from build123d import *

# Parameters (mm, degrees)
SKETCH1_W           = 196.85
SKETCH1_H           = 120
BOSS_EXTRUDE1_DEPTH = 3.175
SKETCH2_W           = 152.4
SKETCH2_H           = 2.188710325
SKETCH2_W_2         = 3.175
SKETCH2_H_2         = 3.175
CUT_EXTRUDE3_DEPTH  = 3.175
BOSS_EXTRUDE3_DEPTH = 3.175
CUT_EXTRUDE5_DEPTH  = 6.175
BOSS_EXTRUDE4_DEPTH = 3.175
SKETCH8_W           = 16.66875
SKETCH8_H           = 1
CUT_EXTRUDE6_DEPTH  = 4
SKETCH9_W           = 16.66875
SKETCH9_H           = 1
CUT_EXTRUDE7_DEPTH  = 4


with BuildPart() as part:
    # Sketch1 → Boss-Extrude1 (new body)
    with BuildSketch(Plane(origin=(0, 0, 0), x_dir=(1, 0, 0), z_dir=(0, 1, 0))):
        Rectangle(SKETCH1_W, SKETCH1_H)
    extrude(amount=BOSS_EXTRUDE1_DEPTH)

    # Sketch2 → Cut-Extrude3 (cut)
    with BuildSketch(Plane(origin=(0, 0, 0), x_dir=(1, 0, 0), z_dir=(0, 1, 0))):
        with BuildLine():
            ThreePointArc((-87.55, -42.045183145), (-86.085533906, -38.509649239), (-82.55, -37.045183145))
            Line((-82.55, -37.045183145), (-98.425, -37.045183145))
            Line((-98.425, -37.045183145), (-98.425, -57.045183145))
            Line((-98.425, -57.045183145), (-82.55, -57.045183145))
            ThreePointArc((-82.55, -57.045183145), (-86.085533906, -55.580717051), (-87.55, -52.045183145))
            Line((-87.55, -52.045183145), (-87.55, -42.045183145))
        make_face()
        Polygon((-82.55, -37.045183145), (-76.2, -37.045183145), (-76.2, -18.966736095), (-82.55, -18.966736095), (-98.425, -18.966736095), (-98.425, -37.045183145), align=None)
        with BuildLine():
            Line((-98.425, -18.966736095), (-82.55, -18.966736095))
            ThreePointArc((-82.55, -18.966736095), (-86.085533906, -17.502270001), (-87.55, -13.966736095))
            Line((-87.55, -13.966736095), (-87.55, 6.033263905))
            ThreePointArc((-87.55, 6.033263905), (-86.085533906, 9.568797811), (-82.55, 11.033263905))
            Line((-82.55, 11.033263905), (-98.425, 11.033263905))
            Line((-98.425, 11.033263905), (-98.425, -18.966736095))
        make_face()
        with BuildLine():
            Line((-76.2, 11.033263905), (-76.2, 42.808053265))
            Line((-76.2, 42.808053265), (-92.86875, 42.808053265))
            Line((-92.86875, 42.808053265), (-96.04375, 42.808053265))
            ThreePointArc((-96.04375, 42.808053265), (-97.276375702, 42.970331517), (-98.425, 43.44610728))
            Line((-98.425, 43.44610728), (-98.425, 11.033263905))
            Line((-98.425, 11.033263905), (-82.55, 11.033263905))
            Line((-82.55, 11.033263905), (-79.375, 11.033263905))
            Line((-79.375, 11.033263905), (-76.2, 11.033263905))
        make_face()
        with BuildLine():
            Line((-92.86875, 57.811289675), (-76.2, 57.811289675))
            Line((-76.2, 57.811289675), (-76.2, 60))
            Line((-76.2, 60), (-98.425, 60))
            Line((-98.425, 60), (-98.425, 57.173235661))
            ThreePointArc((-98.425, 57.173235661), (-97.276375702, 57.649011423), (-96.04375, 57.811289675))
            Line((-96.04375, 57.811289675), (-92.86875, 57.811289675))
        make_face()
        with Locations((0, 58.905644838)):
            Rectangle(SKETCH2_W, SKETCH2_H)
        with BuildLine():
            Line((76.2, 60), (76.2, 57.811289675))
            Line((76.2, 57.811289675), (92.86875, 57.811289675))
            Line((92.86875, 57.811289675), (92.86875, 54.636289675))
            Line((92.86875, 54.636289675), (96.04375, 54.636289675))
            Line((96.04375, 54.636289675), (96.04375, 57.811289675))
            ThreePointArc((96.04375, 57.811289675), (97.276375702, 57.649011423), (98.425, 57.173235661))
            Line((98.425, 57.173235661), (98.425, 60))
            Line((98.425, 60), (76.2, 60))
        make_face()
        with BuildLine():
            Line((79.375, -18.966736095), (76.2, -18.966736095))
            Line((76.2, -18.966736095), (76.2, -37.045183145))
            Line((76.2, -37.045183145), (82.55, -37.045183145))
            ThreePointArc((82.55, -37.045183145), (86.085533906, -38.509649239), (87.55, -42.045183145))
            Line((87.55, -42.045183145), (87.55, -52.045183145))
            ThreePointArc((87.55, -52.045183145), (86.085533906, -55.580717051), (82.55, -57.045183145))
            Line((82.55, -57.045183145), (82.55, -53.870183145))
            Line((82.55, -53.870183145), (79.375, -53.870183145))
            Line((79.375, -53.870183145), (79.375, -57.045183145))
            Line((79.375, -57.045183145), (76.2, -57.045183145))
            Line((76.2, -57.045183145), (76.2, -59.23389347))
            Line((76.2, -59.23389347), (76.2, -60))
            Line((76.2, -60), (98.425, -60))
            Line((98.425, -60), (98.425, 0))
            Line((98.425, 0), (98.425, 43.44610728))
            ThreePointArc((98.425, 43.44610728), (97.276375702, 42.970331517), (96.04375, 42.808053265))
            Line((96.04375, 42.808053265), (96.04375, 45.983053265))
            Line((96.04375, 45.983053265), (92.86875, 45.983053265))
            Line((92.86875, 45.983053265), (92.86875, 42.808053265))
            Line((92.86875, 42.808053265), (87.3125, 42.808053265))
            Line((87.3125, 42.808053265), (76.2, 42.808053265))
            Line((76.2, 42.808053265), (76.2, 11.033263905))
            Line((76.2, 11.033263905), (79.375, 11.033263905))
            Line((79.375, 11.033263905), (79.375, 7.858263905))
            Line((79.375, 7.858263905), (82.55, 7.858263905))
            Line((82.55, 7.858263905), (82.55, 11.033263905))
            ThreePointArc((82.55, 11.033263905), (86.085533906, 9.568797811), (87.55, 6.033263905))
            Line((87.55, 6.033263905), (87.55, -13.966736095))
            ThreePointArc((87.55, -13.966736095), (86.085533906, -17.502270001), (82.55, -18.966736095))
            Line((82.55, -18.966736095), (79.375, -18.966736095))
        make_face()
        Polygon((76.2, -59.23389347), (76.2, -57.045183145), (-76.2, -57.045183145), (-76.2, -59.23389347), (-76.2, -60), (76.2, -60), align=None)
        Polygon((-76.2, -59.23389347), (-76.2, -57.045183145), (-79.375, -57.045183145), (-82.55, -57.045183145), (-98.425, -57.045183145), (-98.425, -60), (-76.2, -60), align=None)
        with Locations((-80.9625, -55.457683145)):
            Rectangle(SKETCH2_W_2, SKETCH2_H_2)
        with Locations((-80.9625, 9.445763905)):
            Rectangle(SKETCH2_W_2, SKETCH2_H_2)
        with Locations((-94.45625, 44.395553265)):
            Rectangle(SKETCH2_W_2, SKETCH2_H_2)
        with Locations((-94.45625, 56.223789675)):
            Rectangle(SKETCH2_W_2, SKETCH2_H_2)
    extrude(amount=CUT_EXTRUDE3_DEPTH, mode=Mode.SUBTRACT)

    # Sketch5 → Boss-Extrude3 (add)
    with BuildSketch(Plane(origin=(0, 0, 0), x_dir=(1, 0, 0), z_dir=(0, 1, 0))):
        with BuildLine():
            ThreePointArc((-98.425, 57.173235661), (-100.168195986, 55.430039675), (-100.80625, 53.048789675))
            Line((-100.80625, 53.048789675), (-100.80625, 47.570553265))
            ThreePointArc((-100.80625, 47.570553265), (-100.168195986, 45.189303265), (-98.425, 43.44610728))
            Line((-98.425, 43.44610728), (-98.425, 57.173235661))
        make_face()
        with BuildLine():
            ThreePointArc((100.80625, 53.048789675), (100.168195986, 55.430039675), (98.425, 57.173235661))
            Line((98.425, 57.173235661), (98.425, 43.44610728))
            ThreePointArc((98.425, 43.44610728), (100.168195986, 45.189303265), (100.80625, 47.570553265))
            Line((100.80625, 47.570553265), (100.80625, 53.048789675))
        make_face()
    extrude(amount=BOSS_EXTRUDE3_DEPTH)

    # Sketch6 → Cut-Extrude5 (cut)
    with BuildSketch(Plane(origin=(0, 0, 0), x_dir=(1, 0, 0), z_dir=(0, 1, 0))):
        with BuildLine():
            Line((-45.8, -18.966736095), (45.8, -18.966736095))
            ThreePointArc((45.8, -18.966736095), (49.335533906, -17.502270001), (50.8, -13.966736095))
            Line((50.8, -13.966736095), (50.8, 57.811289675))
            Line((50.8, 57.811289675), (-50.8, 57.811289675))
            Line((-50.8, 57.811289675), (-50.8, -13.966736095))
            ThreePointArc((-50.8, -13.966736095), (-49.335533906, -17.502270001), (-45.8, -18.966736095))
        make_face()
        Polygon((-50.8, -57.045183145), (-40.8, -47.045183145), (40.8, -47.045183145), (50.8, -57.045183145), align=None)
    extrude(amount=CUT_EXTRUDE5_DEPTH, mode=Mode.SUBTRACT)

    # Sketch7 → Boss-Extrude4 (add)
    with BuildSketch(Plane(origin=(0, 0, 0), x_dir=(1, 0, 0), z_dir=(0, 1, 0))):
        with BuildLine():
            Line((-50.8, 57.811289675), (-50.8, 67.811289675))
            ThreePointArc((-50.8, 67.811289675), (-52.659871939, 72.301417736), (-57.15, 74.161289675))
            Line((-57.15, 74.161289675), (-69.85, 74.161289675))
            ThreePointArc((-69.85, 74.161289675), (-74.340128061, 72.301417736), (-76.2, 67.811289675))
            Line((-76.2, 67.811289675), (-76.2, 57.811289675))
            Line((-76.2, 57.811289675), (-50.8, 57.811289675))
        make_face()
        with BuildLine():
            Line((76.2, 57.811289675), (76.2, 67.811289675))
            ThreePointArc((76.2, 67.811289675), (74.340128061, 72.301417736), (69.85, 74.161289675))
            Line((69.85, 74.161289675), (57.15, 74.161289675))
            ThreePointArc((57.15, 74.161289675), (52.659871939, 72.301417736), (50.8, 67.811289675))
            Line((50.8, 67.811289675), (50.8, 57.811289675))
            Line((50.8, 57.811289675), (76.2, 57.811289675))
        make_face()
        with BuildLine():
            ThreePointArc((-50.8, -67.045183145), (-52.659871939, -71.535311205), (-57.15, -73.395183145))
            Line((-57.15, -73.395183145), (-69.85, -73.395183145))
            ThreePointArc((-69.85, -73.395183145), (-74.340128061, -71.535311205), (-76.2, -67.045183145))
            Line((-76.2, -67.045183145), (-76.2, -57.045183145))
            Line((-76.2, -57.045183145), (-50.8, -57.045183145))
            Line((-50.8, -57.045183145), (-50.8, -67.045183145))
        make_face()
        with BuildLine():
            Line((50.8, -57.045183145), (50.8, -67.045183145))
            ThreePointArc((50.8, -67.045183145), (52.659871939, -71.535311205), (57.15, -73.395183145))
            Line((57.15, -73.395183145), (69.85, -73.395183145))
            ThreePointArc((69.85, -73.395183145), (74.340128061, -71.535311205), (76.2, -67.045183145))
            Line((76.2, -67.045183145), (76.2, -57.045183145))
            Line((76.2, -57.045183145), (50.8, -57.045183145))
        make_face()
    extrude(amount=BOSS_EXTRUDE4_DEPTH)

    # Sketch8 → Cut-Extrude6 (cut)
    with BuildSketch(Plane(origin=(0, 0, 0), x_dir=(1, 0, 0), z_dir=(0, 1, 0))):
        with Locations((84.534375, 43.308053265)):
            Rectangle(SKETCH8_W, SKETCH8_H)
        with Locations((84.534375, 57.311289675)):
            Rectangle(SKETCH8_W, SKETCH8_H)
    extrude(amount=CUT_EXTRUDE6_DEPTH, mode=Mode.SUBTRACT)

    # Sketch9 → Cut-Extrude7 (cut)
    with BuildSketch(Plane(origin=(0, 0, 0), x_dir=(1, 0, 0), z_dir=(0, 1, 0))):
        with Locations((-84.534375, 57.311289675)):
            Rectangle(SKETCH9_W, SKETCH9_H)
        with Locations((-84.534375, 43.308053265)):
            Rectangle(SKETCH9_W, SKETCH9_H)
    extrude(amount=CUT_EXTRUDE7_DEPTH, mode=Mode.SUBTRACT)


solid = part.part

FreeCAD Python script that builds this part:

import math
import FreeCAD as App
import Part
import Sketcher
from FreeCAD import Vector
Q = App.Units.Quantity


def add_polygon(sketch, points):
    """Adds a closed chain of lines whose ends are joined by coincident constraints."""
    first, n = sketch.GeometryCount, len(points)
    for a, b in zip(points, points[1:] + points[:1]):
        sketch.addGeometry(Part.LineSegment(App.Vector(*a, 0), App.Vector(*b, 0)), False)
    for i in range(n):
        sketch.addConstraint(Sketcher.Constraint("Coincident", first + i, 2, first + (i + 1) % n, 1))

doc = App.newDocument("Part")
body = doc.addObject("PartDesign::Body", "Body")

# Sketch on XZ plane
sketch1 = body.newObject("Sketcher::SketchObject", "Sketch")
sketch1.AttachmentSupport = (doc.getObject("XZ_Plane"), [""])
sketch1.MapMode = "FlatFace"
add_polygon(sketch1, [(-98, -60), (-98, 60), (98, 60), (98, -60)])  # lines 0-3
sketch1.addConstraint(Sketcher.Constraint("Vertical", 0))
sketch1.addConstraint(Sketcher.Constraint("Horizontal", 1))
sketch1.addConstraint(Sketcher.Constraint("Vertical", 2))
sketch1.addConstraint(Sketcher.Constraint("Horizontal", 3))
sketch1.addConstraint(Sketcher.Constraint("Symmetric", 0, 2, 2, 2, -1, 1))
sketch1.addConstraint(Sketcher.Constraint("DistanceX", 1, 1, 1, 2, Q("7.75 in")))
sketch1.addConstraint(Sketcher.Constraint("DistanceY", 0, 1, 0, 2, 120.0))
pad1 = body.newObject("PartDesign::Pad", "Pad")
pad1.Profile = sketch1
pad1.Length = Q("0.125 in")
pad1.Reversed = True

# Sketch on XZ plane
sketch2 = body.newObject("Sketcher::SketchObject", "Sketch001")
sketch2.AttachmentSupport = (doc.getObject("XZ_Plane"), [""])
sketch2.MapMode = "FlatFace"
sketch2.addGeometry(Part.ArcOfCircle(Part.Circle(Vector(-82.5, 42, 0), Vector(0, 0, 1), 5), math.radians(180), math.radians(270)), False)
sketch2.addGeometry(Part.LineSegment(Vector(-82.5, 37, 0), Vector(-76.2, 37, 0)), False)
sketch2.addGeometry(Part.LineSegment(Vector(-76.2, 37, 0), Vector(-76.2, 19, 0)), False)
sketch2.addGeometry(Part.LineSegment(Vector(-76.2, 19, 0), Vector(-82.5, 19, 0)), False)
sketch2.addGeometry(Part.ArcOfCircle(Part.Circle(Vector(-82.5, 14, 0), Vector(0, 0, 1), 5), math.radians(90), math.radians(180)), False)
sketch2.addGeometry(Part.LineSegment(Vector(-87.5, 14, 0), Vector(-87.5, -6, 0)), False)
sketch2.addGeometry(Part.ArcOfCircle(Part.Circle(Vector(-82.5, -6, 0), Vector(0, 0, 1), 5), math.radians(180), math.radians(270)), False)
sketch2.addGeometry(Part.LineSegment(Vector(-82.5, -11, 0), Vector(-82.5, -7.9, 0)), False)
sketch2.addGeometry(Part.LineSegment(Vector(-82.5, -7.9, 0), Vector(-79.4, -7.9, 0)), False)
sketch2.addGeometry(Part.LineSegment(Vector(-79.4, -7.9, 0), Vector(-79.4, -11, 0)), False)
sketch2.addGeometry(Part.LineSegment(Vector(-79.4, -11, 0), Vector(-76.2, -11, 0)), False)
sketch2.addGeometry(Part.LineSegment(Vector(-76.2, -11, 0), Vector(-76.2, -42.8, 0)), False)
sketch2.addGeometry(Part.LineSegment(Vector(-76.2, -42.8, 0), Vector(-92.9, -42.8, 0)), False)
sketch2.addGeometry(Part.LineSegment(Vector(-92.9, -42.8, 0), Vector(-92.9, -46, 0)), False)
sketch2.addGeometry(Part.LineSegment(Vector(-92.9, -46, 0), Vector(-96, -46, 0)), False)
sketch2.addGeometry(Part.LineSegment(Vector(-96, -46, 0), Vector(-96, -42.8, 0)), False)
sketch2.addGeometry(Part.ArcOfCircle(Part.Circle(Vector(-96, -47.6, 0), Vector(0, 0, 1), 4.8), math.radians(90), math.radians(120)), False)
sketch2.addGeometry(Part.LineSegment(Vector(-98.4, -43.4, 0), Vector(-98.4, 60, 0)), False)
sketch2.addGeometry(Part.LineSegment(Vector(-98.4, 60, 0), Vector(98.4, 60, 0)), False)
sketch2.addGeometry(Part.LineSegment(Vector(98.4, 60, 0), Vector(98.4, -43.4, 0)), False)
sketch2.addGeometry(Part.ArcOfCircle(Part.Circle(Vector(96, -47.6, 0), Vector(0, 0, 1), 4.8), math.radians(60), math.radians(90)), False)
sketch2.addGeometry(Part.LineSegment(Vector(96, -42.8, 0), Vector(96, -46, 0)), False)
sketch2.addGeometry(Part.LineSegment(Vector(96, -46, 0), Vector(92.9, -46, 0)), False)
sketch2.addGeometry(Part.LineSegment(Vector(92.9, -46, 0), Vector(92.9, -42.8, 0)), False)
sketch2.addGeometry(Part.LineSegment(Vector(92.9, -42.8, 0), Vector(76.2, -42.8, 0)), False)
sketch2.addGeometry(Part.LineSegment(Vector(76.2, -42.8, 0), Vector(76.2, -11, 0)), False)
sketch2.addGeometry(Part.LineSegment(Vector(76.2, -11, 0), Vector(79.4, -11, 0)), False)
sketch2.addGeometry(Part.LineSegment(Vector(79.4, -11, 0), Vector(79.4, -7.9, 0)), False)
sketch2.addGeometry(Part.LineSegment(Vector(79.4, -7.9, 0), Vector(82.5, -7.9, 0)), False)
sketch2.addGeometry(Part.LineSegment(Vector(82.5, -7.9, 0), Vector(82.5, -11, 0)), False)
sketch2.addGeometry(Part.ArcOfCircle(Part.Circle(Vector(82.5, -6, 0), Vector(0, 0, 1), 5), math.radians(-90), math.radians(0)), False)
sketch2.addGeometry(Part.LineSegment(Vector(87.5, -6, 0), Vector(87.5, 14, 0)), False)
sketch2.addGeometry(Part.ArcOfCircle(Part.Circle(Vector(82.5, 14, 0), Vector(0, 0, 1), 5), math.radians(0), math.radians(90)), False)
sketch2.addGeometry(Part.LineSegment(Vector(82.5, 19, 0), Vector(76.2, 19, 0)), False)
sketch2.addGeometry(Part.LineSegment(Vector(76.2, 19, 0), Vector(76.2, 37, 0)), False)
sketch2.addGeometry(Part.LineSegment(Vector(76.2, 37, 0), Vector(82.5, 37, 0)), False)
sketch2.addGeometry(Part.ArcOfCircle(Part.Circle(Vector(82.5, 42, 0), Vector(0, 0, 1), 5), math.radians(-90), math.radians(0)), False)
sketch2.addGeometry(Part.LineSegment(Vector(87.5, 42, 0), Vector(87.5, 52, 0)), False)
sketch2.addGeometry(Part.ArcOfCircle(Part.Circle(Vector(82.5, 52, 0), Vector(0, 0, 1), 5), math.radians(0), math.radians(90)), False)
sketch2.addGeometry(Part.LineSegment(Vector(82.5, 57, 0), Vector(82.5, 53.9, 0)), False)
sketch2.addGeometry(Part.LineSegment(Vector(82.5, 53.9, 0), Vector(79.4, 53.9, 0)), False)
sketch2.addGeometry(Part.LineSegment(Vector(79.4, 53.9, 0), Vector(79.4, 57, 0)), False)
sketch2.addGeometry(Part.LineSegment(Vector(79.4, 57, 0), Vector(-79.4, 57, 0)), False)
sketch2.addGeometry(Part.LineSegment(Vector(-79.4, 57, 0), Vector(-79.4, 53.9, 0)), False)
sketch2.addGeometry(Part.LineSegment(Vector(-79.4, 53.9, 0), Vector(-82.5, 53.9, 0)), False)
sketch2.addGeometry(Part.LineSegment(Vector(-82.5, 53.9, 0), Vector(-82.5, 57, 0)), False)
sketch2.addGeometry(Part.ArcOfCircle(Part.Circle(Vector(-82.5, 52, 0), Vector(0, 0, 1), 5), math.radians(90), math.radians(180)), False)
sketch2.addGeometry(Part.LineSegment(Vector(-87.5, 52, 0), Vector(-87.5, 42, 0)), False)
sketch2.addGeometry(Part.LineSegment(Vector(-76.2, -60, 0), Vector(-98.4, -60, 0)), False)
sketch2.addGeometry(Part.LineSegment(Vector(-98.4, -60, 0), Vector(-98.4, -57.2, 0)), False)
sketch2.addGeometry(Part.ArcOfCircle(Part.Circle(Vector(-96, -53, 0), Vector(0, 0, 1), 4.8), math.radians(-120), math.radians(-90)), False)
sketch2.addGeometry(Part.LineSegment(Vector(-96, -57.8, 0), Vector(-96, -54.6, 0)), False)
sketch2.addGeometry(Part.LineSegment(Vector(-96, -54.6, 0), Vector(-92.9, -54.6, 0)), False)
sketch2.addGeometry(Part.LineSegment(Vector(-92.9, -54.6, 0), Vector(-92.9, -57.8, 0)), False)
sketch2.addGeometry(Part.LineSegment(Vector(-92.9, -57.8, 0), Vector(-76.2, -57.8, 0)), False)
sketch2.addGeometry(Part.LineSegment(Vector(-76.2, -57.8, 0), Vector(76.2, -57.8, 0)), False)
sketch2.addGeometry(Part.LineSegment(Vector(76.2, -57.8, 0), Vector(92.9, -57.8, 0)), False)
sketch2.addGeometry(Part.LineSegment(Vector(92.9, -57.8, 0), Vector(92.9, -54.6, 0)), False)
sketch2.addGeometry(Part.LineSegment(Vector(92.9, -54.6, 0), Vector(96, -54.6, 0)), False)
sketch2.addGeometry(Part.LineSegment(Vector(96, -54.6, 0), Vector(96, -57.8, 0)), False)
sketch2.addGeometry(Part.ArcOfCircle(Part.Circle(Vector(96, -53, 0), Vector(0, 0, 1), 4.8), math.radians(-90), math.radians(-60)), False)
sketch2.addGeometry(Part.LineSegment(Vector(98.4, -57.2, 0), Vector(98.4, -60, 0)), False)
sketch2.addGeometry(Part.LineSegment(Vector(98.4, -60, 0), Vector(76.2, -60, 0)), False)
sketch2.addGeometry(Part.LineSegment(Vector(76.2, -60, 0), Vector(-76.2, -60, 0)), False)
sketch2.addConstraint(Sketcher.Constraint("Tangent", 0, 2, 1, 1))
sketch2.addConstraint(Sketcher.Constraint("Coincident", 1, 2, 2, 1))
sketch2.addConstraint(Sketcher.Constraint("Coincident", 2, 2, 3, 1))
sketch2.addConstraint(Sketcher.Constraint("Tangent", 3, 2, 4, 1))
sketch2.addConstraint(Sketcher.Constraint("Tangent", 4, 2, 5, 1))
sketch2.addConstraint(Sketcher.Constraint("Tangent", 5, 2, 6, 1))
sketch2.addConstraint(Sketcher.Constraint("Coincident", 6, 2, 7, 1))
sketch2.addConstraint(Sketcher.Constraint("Coincident", 7, 2, 8, 1))
sketch2.addConstraint(Sketcher.Constraint("Coincident", 8, 2, 9, 1))
sketch2.addConstraint(Sketcher.Constraint("Coincident", 9, 2, 10, 1))
sketch2.addConstraint(Sketcher.Constraint("Coincident", 10, 2, 11, 1))
sketch2.addConstraint(Sketcher.Constraint("Coincident", 11, 2, 12, 1))
sketch2.addConstraint(Sketcher.Constraint("Coincident", 12, 2, 13, 1))
sketch2.addConstraint(Sketcher.Constraint("Coincident", 13, 2, 14, 1))
sketch2.addConstraint(Sketcher.Constraint("Coincident", 14, 2, 15, 1))
sketch2.addConstraint(Sketcher.Constraint("Coincident", 15, 2, 16, 1))
sketch2.addConstraint(Sketcher.Constraint("Coincident", 16, 2, 17, 1))
sketch2.addConstraint(Sketcher.Constraint("Coincident", 17, 2, 18, 1))
sketch2.addConstraint(Sketcher.Constraint("Coincident", 18, 2, 19, 1))
sketch2.addConstraint(Sketcher.Constraint("Coincident", 19, 2, 20, 1))
sketch2.addConstraint(Sketcher.Constraint("Coincident", 20, 2, 21, 1))
sketch2.addConstraint(Sketcher.Constraint("Coincident", 21, 2, 22, 1))
sketch2.addConstraint(Sketcher.Constraint("Coincident", 22, 2, 23, 1))
sketch2.addConstraint(Sketcher.Constraint("Coincident", 23, 2, 24, 1))
sketch2.addConstraint(Sketcher.Constraint("Coincident", 24, 2, 25, 1))
sketch2.addConstraint(Sketcher.Constraint("Coincident", 25, 2, 26, 1))
sketch2.addConstraint(Sketcher.Constraint("Coincident", 26, 2, 27, 1))
sketch2.addConstraint(Sketcher.Constraint("Coincident", 27, 2, 28, 1))
sketch2.addConstraint(Sketcher.Constraint("Coincident", 28, 2, 29, 1))
sketch2.addConstraint(Sketcher.Constraint("Coincident", 29, 2, 30, 1))
sketch2.addConstraint(Sketcher.Constraint("Tangent", 30, 2, 31, 1))
sketch2.addConstraint(Sketcher.Constraint("Tangent", 31, 2, 32, 1))
sketch2.addConstraint(Sketcher.Constraint("Tangent", 32, 2, 33, 1))
sketch2.addConstraint(Sketcher.Constraint("Coincident", 33, 2, 34, 1))
sketch2.addConstraint(Sketcher.Constraint("Coincident", 34, 2, 35, 1))
sketch2.addConstraint(Sketcher.Constraint("Tangent", 35, 2, 36, 1))
sketch2.addConstraint(Sketcher.Constraint("Tangent", 36, 2, 37, 1))
sketch2.addConstraint(Sketcher.Constraint("Tangent", 37, 2, 38, 1))
sketch2.addConstraint(Sketcher.Constraint("Coincident", 38, 2, 39, 1))
sketch2.addConstraint(Sketcher.Constraint("Coincident", 39, 2, 40, 1))
sketch2.addConstraint(Sketcher.Constraint("Coincident", 40, 2, 41, 1))
sketch2.addConstraint(Sketcher.Constraint("Coincident", 41, 2, 42, 1))
sketch2.addConstraint(Sketcher.Constraint("Coincident", 42, 2, 43, 1))
sketch2.addConstraint(Sketcher.Constraint("Coincident", 43, 2, 44, 1))
sketch2.addConstraint(Sketcher.Constraint("Coincident", 44, 2, 45, 1))
sketch2.addConstraint(Sketcher.Constraint("Coincident", 45, 2, 46, 1))
sketch2.addConstraint(Sketcher.Constraint("Tangent", 46, 2, 47, 1))
sketch2.addConstraint(Sketcher.Constraint("Tangent", 47, 2, 0, 1))
sketch2.addConstraint(Sketcher.Constraint("Coincident", 48, 2, 49, 1))
sketch2.addConstraint(Sketcher.Constraint("Coincident", 49, 2, 50, 1))
sketch2.addConstraint(Sketcher.Constraint("Coincident", 50, 2, 51, 1))
sketch2.addConstraint(Sketcher.Constraint("Coincident", 51, 2, 52, 1))
sketch2.addConstraint(Sketcher.Constraint("Coincident", 52, 2, 53, 1))
sketch2.addConstraint(Sketcher.Constraint("Coincident", 53, 2, 54, 1))
sketch2.addConstraint(Sketcher.Constraint("Coincident", 54, 2, 55, 1))
sketch2.addConstraint(Sketcher.Constraint("Coincident", 55, 2, 56, 1))
sketch2.addConstraint(Sketcher.Constraint("Coincident", 56, 2, 57, 1))
sketch2.addConstraint(Sketcher.Constraint("Coincident", 57, 2, 58, 1))
sketch2.addConstraint(Sketcher.Constraint("Coincident", 58, 2, 59, 1))
sketch2.addConstraint(Sketcher.Constraint("Coincident", 59, 2, 60, 1))
sketch2.addConstraint(Sketcher.Constraint("Coincident", 60, 2, 61, 1))
sketch2.addConstraint(Sketcher.Constraint("Coincident", 61, 2, 62, 1))
sketch2.addConstraint(Sketcher.Constraint("Coincident", 62, 2, 63, 1))
sketch2.addConstraint(Sketcher.Constraint("Coincident", 63, 2, 48, 1))
sketch2.addConstraint(Sketcher.Constraint("Horizontal", 1))
sketch2.addConstraint(Sketcher.Constraint("Vertical", 2))
sketch2.addConstraint(Sketcher.Constraint("Horizontal", 3))
sketch2.addConstraint(Sketcher.Constraint("Vertical", 5))
sketch2.addConstraint(Sketcher.Constraint("Vertical", 7))
sketch2.addConstraint(Sketcher.Constraint("Horizontal", 8))
sketch2.addConstraint(Sketcher.Constraint("Vertical", 9))
sketch2.addConstraint(Sketcher.Constraint("Horizontal", 10))
sketch2.addConstraint(Sketcher.Constraint("Vertical", 11))
sketch2.addConstraint(Sketcher.Constraint("Horizontal", 12))
sketch2.addConstraint(Sketcher.Constraint("Vertical", 13))
sketch2.addConstraint(Sketcher.Constraint("Horizontal", 14))
sketch2.addConstraint(Sketcher.Constraint("Vertical", 15))
sketch2.addConstraint(Sketcher.Constraint("Vertical", 17))
sketch2.addConstraint(Sketcher.Constraint("Horizontal", 18))
sketch2.addConstraint(Sketcher.Constraint("Vertical", 19))
sketch2.addConstraint(Sketcher.Constraint("Vertical", 21))
sketch2.addConstraint(Sketcher.Constraint("Horizontal", 22))
sketch2.addConstraint(Sketcher.Constraint("Vertical", 23))
sketch2.addConstraint(Sketcher.Constraint("Horizontal", 24))
sketch2.addConstraint(Sketcher.Constraint("Vertical", 25))
sketch2.addConstraint(Sketcher.Constraint("Horizontal", 26))
sketch2.addConstraint(Sketcher.Constraint("Vertical", 27))
sketch2.addConstraint(Sketcher.Constraint("Horizontal", 28))
sketch2.addConstraint(Sketcher.Constraint("Vertical", 29))
sketch2.addConstraint(Sketcher.Constraint("Vertical", 31))
sketch2.addConstraint(Sketcher.Constraint("Horizontal", 33))
sketch2.addConstraint(Sketcher.Constraint("Vertical", 34))
sketch2.addConstraint(Sketcher.Constraint("Horizontal", 35))
sketch2.addConstraint(Sketcher.Constraint("Vertical", 37))
sketch2.addConstraint(Sketcher.Constraint("Vertical", 39))
sketch2.addConstraint(Sketcher.Constraint("Horizontal", 40))
sketch2.addConstraint(Sketcher.Constraint("Vertical", 41))
sketch2.addConstraint(Sketcher.Constraint("Horizontal", 42))
sketch2.addConstraint(Sketcher.Constraint("Vertical", 43))
sketch2.addConstraint(Sketcher.Constraint("Horizontal", 44))
sketch2.addConstraint(Sketcher.Constraint("Vertical", 45))
sketch2.addConstraint(Sketcher.Constraint("Vertical", 47))
sketch2.addConstraint(Sketcher.Constraint("Horizontal", 48))
sketch2.addConstraint(Sketcher.Constraint("Vertical", 49))
sketch2.addConstraint(Sketcher.Constraint("Vertical", 51))
sketch2.addConstraint(Sketcher.Constraint("Horizontal", 52))
sketch2.addConstraint(Sketcher.Constraint("Vertical", 53))
sketch2.addConstraint(Sketcher.Constraint("Horizontal", 54))
sketch2.addConstraint(Sketcher.Constraint("Horizontal", 55))
sketch2.addConstraint(Sketcher.Constraint("Horizontal", 56))
sketch2.addConstraint(Sketcher.Constraint("Vertical", 57))
sketch2.addConstraint(Sketcher.Constraint("Horizontal", 58))
sketch2.addConstraint(Sketcher.Constraint("Vertical", 59))
sketch2.addConstraint(Sketcher.Constraint("Vertical", 61))
sketch2.addConstraint(Sketcher.Constraint("Horizontal", 62))
sketch2.addConstraint(Sketcher.Constraint("Horizontal", 63))
sketch2.addConstraint(Sketcher.Constraint("Equal", 0, 4))
sketch2.addConstraint(Sketcher.Constraint("Equal", 4, 6))
sketch2.addConstraint(Sketcher.Constraint("Equal", 16, 20))
sketch2.addConstraint(Sketcher.Constraint("Equal", 6, 30))
sketch2.addConstraint(Sketcher.Constraint("Equal", 30, 32))
sketch2.addConstraint(Sketcher.Constraint("Equal", 32, 36))
sketch2.addConstraint(Sketcher.Constraint("Equal", 36, 38))
sketch2.addConstraint(Sketcher.Constraint("Equal", 38, 46))
sketch2.addConstraint(Sketcher.Constraint("Equal", 20, 50))
sketch2.addConstraint(Sketcher.Constraint("Equal", 50, 60))
sketch2.addConstraint(Sketcher.Constraint("Symmetric", 18, 2, 48, 2, -1, 1))
sketch2.addConstraint(Sketcher.Constraint("Symmetric", 16, 3, 20, 3, -2))
sketch2.addConstraint(Sketcher.Constraint("Symmetric", 6, 3, 30, 3, -2))
sketch2.addConstraint(Sketcher.Constraint("Symmetric", 0, 3, 36, 3, -2))
sketch2.addConstraint(Sketcher.Constraint("Symmetric", 50, 3, 60, 3, -2))
sketch2.addConstraint(Sketcher.Constraint("Symmetric", 14, 2, 21, 2, -2))
sketch2.addConstraint(Sketcher.Constraint("Symmetric", 12, 2, 23, 2, -2))
sketch2.addConstraint(Sketcher.Constraint("Symmetric", 10, 2, 25, 2, -2))
sketch2.addConstraint(Sketcher.Constraint("Symmetric", 8, 2, 27, 2, -2))
sketch2.addConstraint(Sketcher.Constraint("Symmetric", 2, 2, 33, 2, -2))
sketch2.addConstraint(Sketcher.Constraint("Symmetric", 40, 2, 43, 2, -2))
sketch2.addConstraint(Sketcher.Constraint("Symmetric", 38, 2, 45, 2, -2))
sketch2.addConstraint(Sketcher.Constraint("Symmetric", 52, 2, 57, 2, -2))
sketch2.addConstraint(Sketcher.Constraint("Horizontal", 6, 2, 9, 2))
sketch2.addConstraint(Sketcher.Constraint("Horizontal", 12, 2, 15, 2))
sketch2.addConstraint(Sketcher.Constraint("Horizontal", 16, 2, 19, 2))
sketch2.addConstraint(Sketcher.Constraint("Horizontal", 38, 2, 41, 2))
sketch2.addConstraint(Sketcher.Constraint("Horizontal", 50, 2, 53, 2))
sketch2.addConstraint(Sketcher.Constraint("Horizontal", 49, 2, 60, 2))
sketch2.addConstraint(Sketcher.Constraint("Vertical", 0, 3, 4, 3))
sketch2.addConstraint(Sketcher.Constraint("Vertical", 16, 3, 50, 3))
sketch2.addConstraint(Sketcher.Constraint("Vertical", 3, 2, 6, 2))
sketch2.addConstraint(Sketcher.Constraint("Vertical", 2, 2, 10, 2))
sketch2.addConstraint(Sketcher.Constraint("Vertical", 50, 3, 14, 2))
sketch2.addConstraint(Sketcher.Constraint("Vertical", 38, 3, 28, 2))
sketch2.addConstraint(Sketcher.Constraint("Vertical", 35, 2, 38, 2))
sketch2.addConstraint(Sketcher.Constraint("Vertical", 27, 2, 40, 2))
sketch2.addConstraint(Sketcher.Constraint("Vertical", 15, 2, 50, 2))
sketch2.addConstraint(Sketcher.Constraint("Vertical", 13, 2, 52, 2))
sketch2.addConstraint(Sketcher.Constraint("Vertical", 11, 2, 54, 2))
sketch2.addConstraint(Sketcher.Constraint("Vertical", 34, 2, 55, 2))
sketch2.addConstraint(Sketcher.Constraint("Vertical", 21, 2, 58, 2))
sketch2.addConstraint(Sketcher.Constraint("Vertical", 55, 2, 62, 2))
sketch2.addConstraint(Sketcher.Constraint("Vertical", 54, 2, 63, 2))
sketch2.addConstraint(Sketcher.Constraint("Equal", 8, 10))
sketch2.addConstraint(Sketcher.Constraint("Equal", 10, 14))
sketch2.addConstraint(Sketcher.Constraint("Equal", 58, 7))
sketch2.addConstraint(Sketcher.Constraint("Equal", 9, 13))
sketch2.addConstraint(Sketcher.Constraint("Equal", 29, 39))
sketch2.addConstraint(Sketcher.Constraint("Equal", 45, 51))
sketch2.addConstraint(Sketcher.Constraint("DistanceX", 55, 1, 55, 2, Q("6 in")))
sketch2.addConstraint(Sketcher.Constraint("Radius", 16, Q("0.1875 in")))
sketch2.addConstraint(Sketcher.Constraint("DistanceX", 1, 1, 1, 2, Q("0.25 in")))
sketch2.addConstraint(Sketcher.Constraint("DistanceX", 18, 1, 18, 2, Q("7.75 in")))
sketch2.addConstraint(Sketcher.Constraint("DistanceX", 12, 2, 12, 1, Q("0.65625 in")))
sketch2.addConstraint(Sketcher.Constraint("Radius", 0, 5.0))
sketch2.addConstraint(Sketcher.Constraint("DistanceY", 5, 2, 5, 1, 20.0))
sketch2.addConstraint(Sketcher.Constraint("DistanceY", 37, 1, 37, 2, 10.0))
sketch2.addConstraint(Sketcher.Constraint("DistanceY", 11, 2, 11, 1, 31.774789))
sketch2.addConstraint(Sketcher.Constraint("DistanceY", -1, 1, 17, 2, 60.0))
sketch2.addConstraint(Sketcher.Constraint("DistanceY", 2, 2, 2, 1, 18.078447))
sketch2.addConstraint(Sketcher.Constraint("DistanceY", 17, 1, 17, 2, 103.446107))
sketch2.addConstraint(Sketcher.Constraint("DistanceY", 49, 1, 49, 2, 2.826764))
pocket1 = body.newObject("PartDesign::Pocket", "Pocket")
pocket1.Profile = sketch2
pocket1.Length = Q("0.125 in")

# Sketch on XZ plane
sketch3 = body.newObject("Sketcher::SketchObject", "Sketch002")
sketch3.AttachmentSupport = (doc.getObject("XZ_Plane"), [""])
sketch3.MapMode = "FlatFace"
sketch3.addGeometry(Part.ArcOfCircle(Part.Circle(Vector(-96, -53, 0), Vector(0, 0, 1), 4.8), math.radians(180), math.radians(240)), False)
sketch3.addGeometry(Part.LineSegment(Vector(-100.8, -53, 0), Vector(-100.8, -47.6, 0)), False)
sketch3.addGeometry(Part.ArcOfCircle(Part.Circle(Vector(-96, -47.6, 0), Vector(0, 0, 1), 4.8), math.radians(120), math.radians(180)), False)
sketch3.addGeometry(Part.LineSegment(Vector(-98.4, -43.4, 0), Vector(-98.4, -57.2, 0)), False)
sketch3.addGeometry(Part.ArcOfCircle(Part.Circle(Vector(96, -53, 0), Vector(0, 0, 1), 4.8), math.radians(-60), math.radians(0)), False)
sketch3.addGeometry(Part.LineSegment(Vector(98.4, -57.2, 0), Vector(98.4, -43.4, 0)), False)
sketch3.addGeometry(Part.ArcOfCircle(Part.Circle(Vector(96, -47.6, 0), Vector(0, 0, 1), 4.8), math.radians(0), math.radians(60)), False)
sketch3.addGeometry(Part.LineSegment(Vector(100.8, -47.6, 0), Vector(100.8, -53, 0)), False)
sketch3.addConstraint(Sketcher.Constraint("Tangent", 0, 1, 1, 1))
sketch3.addConstraint(Sketcher.Constraint("Tangent", 1, 2, 2, 2))
sketch3.addConstraint(Sketcher.Constraint("Coincident", 2, 1, 3, 1))
sketch3.addConstraint(Sketcher.Constraint("Coincident", 3, 2, 0, 2))
sketch3.addConstraint(Sketcher.Constraint("Coincident", 4, 1, 5, 1))
sketch3.addConstraint(Sketcher.Constraint("Coincident", 5, 2, 6, 2))
sketch3.addConstraint(Sketcher.Constraint("Tangent", 6, 1, 7, 1))
sketch3.addConstraint(Sketcher.Constraint("Tangent", 7, 2, 4, 2))
sketch3.addConstraint(Sketcher.Constraint("Vertical", 1))
sketch3.addConstraint(Sketcher.Constraint("Vertical", 3))
sketch3.addConstraint(Sketcher.Constraint("Vertical", 5))
sketch3.addConstraint(Sketcher.Constraint("Vertical", 7))
sketch3.addConstraint(Sketcher.Constraint("Equal", 0, 2))
sketch3.addConstraint(Sketcher.Constraint("Equal", 2, 4))
sketch3.addConstraint(Sketcher.Constraint("Equal", 4, 6))
sketch3.addConstraint(Sketcher.Constraint("Symmetric", 0, 3, 4, 3, -2))
sketch3.addConstraint(Sketcher.Constraint("Symmetric", 2, 1, 5, 2, -2))
sketch3.addConstraint(Sketcher.Constraint("Radius", 0, Q("0.1875 in")))
sketch3.addConstraint(Sketcher.Constraint("DistanceX", 0, 1, 4, 3, Q("7.75 in")))
sketch3.addConstraint(Sketcher.Constraint("DistanceX", 3, 2, 4, 1, Q("7.75 in")))
sketch3.addConstraint(Sketcher.Constraint("DistanceY", 3, 2, 3, 1, 13.727128))
sketch3.addConstraint(Sketcher.Constraint("DistanceY", 0, 3, -1, 1, 53.04879))
pad2 = body.newObject("PartDesign::Pad", "Pad001")
pad2.Profile = sketch3
pad2.Length = Q("0.125 in")
pad2.Reversed = True

# Sketch on XZ plane
sketch4 = body.newObject("Sketcher::SketchObject", "Sketch003")
sketch4.AttachmentSupport = (doc.getObject("XZ_Plane"), [""])
sketch4.MapMode = "FlatFace"
sketch4.addGeometry(Part.LineSegment(Vector(-46, 19, 0), Vector(46, 19, 0)), False)  # 0
sketch4.addGeometry(Part.ArcOfCircle(Part.Circle(Vector(46, 14, 0), Vector(0, 0, 1), 5), math.radians(0), math.radians(90)), False)  # 1
sketch4.addGeometry(Part.LineSegment(Vector(51, 14, 0), Vector(51, -58, 0)), False)  # 2
sketch4.addGeometry(Part.LineSegment(Vector(51, -58, 0), Vector(-51, -58, 0)), False)  # 3
sketch4.addGeometry(Part.LineSegment(Vector(-51, -58, 0), Vector(-51, 14, 0)), False)  # 4
sketch4.addGeometry(Part.ArcOfCircle(Part.Circle(Vector(-46, 14, 0), Vector(0, 0, 1), 5), math.radians(90), math.radians(180)), False)  # 5
add_polygon(sketch4, [(-41, 47), (-51, 57), (51, 57), (41, 47)])  # lines 6-9
sketch4.addConstraint(Sketcher.Constraint("Tangent", 0, 2, 1, 2))
sketch4.addConstraint(Sketcher.Constraint("Tangent", 1, 1, 2, 1))
sketch4.addConstraint(Sketcher.Constraint("Coincident", 2, 2, 3, 1))
sketch4.addConstraint(Sketcher.Constraint("Coincident", 3, 2, 4, 1))
sketch4.addConstraint(Sketcher.Constraint("Tangent", 4, 2, 5, 2))
sketch4.addConstraint(Sketcher.Constraint("Tangent", 5, 1, 0, 1))
sketch4.addConstraint(Sketcher.Constraint("Horizontal", 0))
sketch4.addConstraint(Sketcher.Constraint("Vertical", 2))
sketch4.addConstraint(Sketcher.Constraint("Horizontal", 3))
sketch4.addConstraint(Sketcher.Constraint("Vertical", 4))
sketch4.addConstraint(Sketcher.Constraint("Horizontal", 7))
sketch4.addConstraint(Sketcher.Constraint("Horizontal", 9))
sketch4.addConstraint(Sketcher.Constraint("Equal", 1, 5))
sketch4.addConstraint(Sketcher.Constraint("Perpendicular", 6, 8))
sketch4.addConstraint(Sketcher.Constraint("Vertical", 4, 2, 6, 2))
sketch4.addConstraint(Sketcher.Constraint("Vertical", 2, 2, 7, 2))
sketch4.addConstraint(Sketcher.Constraint("Equal", 6, 8))
sketch4.addConstraint(Sketcher.Constraint("DistanceX", 3, 2, 3, 1, Q("4 in")))
sketch4.addConstraint(Sketcher.Constraint("DistanceX", -1, 1, 1, 1, Q("2 in")))
sketch4.addConstraint(Sketcher.Constraint("Radius", 1, 5.0))
sketch4.addConstraint(Sketcher.Constraint("DistanceX", 9, 2, 9, 1, 81.6))
sketch4.addConstraint(Sketcher.Constraint("DistanceY", 2, 2, 2, 1, 71.778026))
sketch4.addConstraint(Sketcher.Constraint("DistanceY", 2, 2, -1, 1, 57.81129))
sketch4.addConstraint(Sketcher.Constraint("DistanceY", -1, 1, 6, 2, 57.045183))
pocket2 = body.newObject("PartDesign::Pocket", "Pocket001")
pocket2.Profile = sketch4
pocket2.Length = 6.175

# Sketch on XZ plane
sketch5 = body.newObject("Sketcher::SketchObject", "Sketch004")
sketch5.AttachmentSupport = (doc.getObject("XZ_Plane"), [""])
sketch5.MapMode = "FlatFace"
sketch5.addGeometry(Part.LineSegment(Vector(-51, -58, 0), Vector(-51, -68, 0)), False)
sketch5.addGeometry(Part.ArcOfCircle(Part.Circle(Vector(-57, -68, 0), Vector(0, 0, 1), 6), math.radians(-90), math.radians(0)), False)
sketch5.addGeometry(Part.LineSegment(Vector(-57, -74, 0), Vector(-70, -74, 0)), False)
sketch5.addGeometry(Part.ArcOfCircle(Part.Circle(Vector(-70, -68, 0), Vector(0, 0, 1), 6), math.radians(180), math.radians(270)), False)
sketch5.addGeometry(Part.LineSegment(Vector(-76, -68, 0), Vector(-76, -58, 0)), False)
sketch5.addGeometry(Part.LineSegment(Vector(-76, -58, 0), Vector(-51, -58, 0)), False)
sketch5.addGeometry(Part.LineSegment(Vector(76, -58, 0), Vector(76, -68, 0)), False)
sketch5.addGeometry(Part.ArcOfCircle(Part.Circle(Vector(70, -68, 0), Vector(0, 0, 1), 6), math.radians(-90), math.radians(0)), False)
sketch5.addGeometry(Part.LineSegment(Vector(70, -74, 0), Vector(57, -74, 0)), False)
sketch5.addGeometry(Part.ArcOfCircle(Part.Circle(Vector(57, -68, 0), Vector(0, 0, 1), 6), math.radians(180), math.radians(270)), False)
sketch5.addGeometry(Part.LineSegment(Vector(51, -68, 0), Vector(51, -58, 0)), False)
sketch5.addGeometry(Part.LineSegment(Vector(51, -58, 0), Vector(76, -58, 0)), False)
sketch5.addGeometry(Part.ArcOfCircle(Part.Circle(Vector(-57, 67, 0), Vector(0, 0, 1), 6), math.radians(0), math.radians(90)), False)
sketch5.addGeometry(Part.LineSegment(Vector(-51, 67, 0), Vector(-51, 57, 0)), False)
sketch5.addGeometry(Part.LineSegment(Vector(-51, 57, 0), Vector(-76, 57, 0)), False)
sketch5.addGeometry(Part.LineSegment(Vector(-76, 57, 0), Vector(-76, 67, 0)), False)
sketch5.addGeometry(Part.ArcOfCircle(Part.Circle(Vector(-70, 67, 0), Vector(0, 0, 1), 6), math.radians(90), math.radians(180)), False)
sketch5.addGeometry(Part.LineSegment(Vector(-70, 73, 0), Vector(-57, 73, 0)), False)
sketch5.addGeometry(Part.LineSegment(Vector(51, 57, 0), Vector(51, 67, 0)), False)
sketch5.addGeometry(Part.ArcOfCircle(Part.Circle(Vector(57, 67, 0), Vector(0, 0, 1), 6), math.radians(90), math.radians(180)), False)
sketch5.addGeometry(Part.LineSegment(Vector(57, 73, 0), Vector(70, 73, 0)), False)
sketch5.addGeometry(Part.ArcOfCircle(Part.Circle(Vector(70, 67, 0), Vector(0, 0, 1), 6), math.radians(0), math.radians(90)), False)
sketch5.addGeometry(Part.LineSegment(Vector(76, 67, 0), Vector(76, 57, 0)), False)
sketch5.addGeometry(Part.LineSegment(Vector(76, 57, 0), Vector(51, 57, 0)), False)
sketch5.addConstraint(Sketcher.Constraint("Tangent", 0, 2, 1, 2))
sketch5.addConstraint(Sketcher.Constraint("Tangent", 1, 1, 2, 1))
sketch5.addConstraint(Sketcher.Constraint("Tangent", 2, 2, 3, 2))
sketch5.addConstraint(Sketcher.Constraint("Tangent", 3, 1, 4, 1))
sketch5.addConstraint(Sketcher.Constraint("Coincident", 4, 2, 5, 1))
sketch5.addConstraint(Sketcher.Constraint("Coincident", 5, 2, 0, 1))
sketch5.addConstraint(Sketcher.Constraint("Tangent", 6, 2, 7, 2))
sketch5.addConstraint(Sketcher.Constraint("Tangent", 7, 1, 8, 1))
sketch5.addConstraint(Sketcher.Constraint("Tangent", 8, 2, 9, 2))
sketch5.addConstraint(Sketcher.Constraint("Tangent", 9, 1, 10, 1))
sketch5.addConstraint(Sketcher.Constraint("Coincident", 10, 2, 11, 1))
sketch5.addConstraint(Sketcher.Constraint("Coincident", 11, 2, 6, 1))
sketch5.addConstraint(Sketcher.Constraint("Tangent", 12, 1, 13, 1))
sketch5.addConstraint(Sketcher.Constraint("Coincident", 13, 2, 14, 1))
sketch5.addConstraint(Sketcher.Constraint("Coincident", 14, 2, 15, 1))
sketch5.addConstraint(Sketcher.Constraint("Tangent", 15, 2, 16, 2))
sketch5.addConstraint(Sketcher.Constraint("Tangent", 16, 1, 17, 1))
sketch5.addConstraint(Sketcher.Constraint("Tangent", 17, 2, 12, 2))
sketch5.addConstraint(Sketcher.Constraint("Tangent", 18, 2, 19, 2))
sketch5.addConstraint(Sketcher.Constraint("Tangent", 19, 1, 20, 1))
sketch5.addConstraint(Sketcher.Constraint("Tangent", 20, 2, 21, 2))
sketch5.addConstraint(Sketcher.Constraint("Tangent", 21, 1, 22, 1))
sketch5.addConstraint(Sketcher.Constraint("Coincident", 22, 2, 23, 1))
sketch5.addConstraint(Sketcher.Constraint("Coincident", 23, 2, 18, 1))
sketch5.addConstraint(Sketcher.Constraint("Vertical", 0))
sketch5.addConstraint(Sketcher.Constraint("Horizontal", 2))
sketch5.addConstraint(Sketcher.Constraint("Vertical", 4))
sketch5.addConstraint(Sketcher.Constraint("Horizontal", 5))
sketch5.addConstraint(Sketcher.Constraint("Vertical", 6))
sketch5.addConstraint(Sketcher.Constraint("Horizontal", 8))
sketch5.addConstraint(Sketcher.Constraint("Vertical", 10))
sketch5.addConstraint(Sketcher.Constraint("Horizontal", 11))
sketch5.addConstraint(Sketcher.Constraint("Vertical", 13))
sketch5.addConstraint(Sketcher.Constraint("Horizontal", 14))
sketch5.addConstraint(Sketcher.Constraint("Vertical", 15))
sketch5.addConstraint(Sketcher.Constraint("Horizontal", 17))
sketch5.addConstraint(Sketcher.Constraint("Vertical", 18))
sketch5.addConstraint(Sketcher.Constraint("Horizontal", 20))
sketch5.addConstraint(Sketcher.Constraint("Vertical", 22))
sketch5.addConstraint(Sketcher.Constraint("Horizontal", 23))
sketch5.addConstraint(Sketcher.Constraint("Equal", 1, 3))
sketch5.addConstraint(Sketcher.Constraint("Equal", 3, 7))
sketch5.addConstraint(Sketcher.Constraint("Equal", 7, 9))
sketch5.addConstraint(Sketcher.Constraint("Equal", 9, 12))
sketch5.addConstraint(Sketcher.Constraint("Equal", 12, 16))
sketch5.addConstraint(Sketcher.Constraint("Equal", 16, 19))
sketch5.addConstraint(Sketcher.Constraint("Equal", 19, 21))
sketch5.addConstraint(Sketcher.Constraint("Symmetric", 3, 3, 7, 3, -2))
sketch5.addConstraint(Sketcher.Constraint("Symmetric", 12, 3, 19, 3, -2))
sketch5.addConstraint(Sketcher.Constraint("Symmetric", 5, 2, 10, 2, -2))
sketch5.addConstraint(Sketcher.Constraint("Symmetric", 14, 2, 22, 2, -2))
sketch5.addConstraint(Sketcher.Constraint("Vertical", 1, 3, 12, 3))
sketch5.addConstraint(Sketcher.Constraint("Vertical", 3, 3, 16, 3))
sketch5.addConstraint(Sketcher.Constraint("Equal", 10, 13))
sketch5.addConstraint(Sketcher.Constraint("DistanceX", 5, 1, 5, 2, Q("1 in")))
sketch5.addConstraint(Sketcher.Constraint("Radius", 1, Q("0.25 in")))
sketch5.addConstraint(Sketcher.Constraint("DistanceX", 0, 2, -1, 1, Q("2 in")))
sketch5.addConstraint(Sketcher.Constraint("DistanceY", 0, 2, 0, 1, 10.0))
sketch5.addConstraint(Sketcher.Constraint("DistanceY", 1, 3, -1, 1, 67.81129))
sketch5.addConstraint(Sketcher.Constraint("DistanceY", -1, 1, 12, 3, 67.045183))
pad3 = body.newObject("PartDesign::Pad", "Pad002")
pad3.Profile = sketch5
pad3.Length = Q("0.125 in")
pad3.Reversed = True

# Sketch on XZ plane
sketch6 = body.newObject("Sketcher::SketchObject", "Sketch005")
sketch6.AttachmentSupport = (doc.getObject("XZ_Plane"), [""])
sketch6.MapMode = "FlatFace"
add_polygon(sketch6, [(76.2, -43.8), (76.2, -42.8), (92.9, -42.8), (92.9, -43.8)])  # lines 0-3
add_polygon(sketch6, [(76.2, -57.8), (76.2, -56.8), (92.9, -56.8), (92.9, -57.8)])  # lines 4-7
sketch6.addConstraint(Sketcher.Constraint("Vertical", 0))
sketch6.addConstraint(Sketcher.Constraint("Horizontal", 1))
sketch6.addConstraint(Sketcher.Constraint("Vertical", 2))
sketch6.addConstraint(Sketcher.Constraint("Horizontal", 3))
sketch6.addConstraint(Sketcher.Constraint("Vertical", 4))
sketch6.addConstraint(Sketcher.Constraint("Horizontal", 5))
sketch6.addConstraint(Sketcher.Constraint("Vertical", 6))
sketch6.addConstraint(Sketcher.Constraint("Horizontal", 7))
sketch6.addConstraint(Sketcher.Constraint("Vertical", 3, 2, 4, 2))
sketch6.addConstraint(Sketcher.Constraint("Vertical", 2, 2, 5, 2))
sketch6.addConstraint(Sketcher.Constraint("Equal", 2, 4))
sketch6.addConstraint(Sketcher.Constraint("DistanceX", -1, 1, 0, 2, Q("3 in")))
sketch6.addConstraint(Sketcher.Constraint("DistanceX", 1, 1, 1, 2, Q("0.65625 in")))
sketch6.addConstraint(Sketcher.Constraint("DistanceY", 0, 1, 0, 2, 1.0))
sketch6.addConstraint(Sketcher.Constraint("DistanceY", 4, 2, -1, 1, 56.81129))
sketch6.addConstraint(Sketcher.Constraint("DistanceY", 0, 2, -1, 1, 42.808053))
pocket3 = body.newObject("PartDesign::Pocket", "Pocket002")
pocket3.Profile = sketch6
pocket3.Length = 4

# Sketch on XZ plane
sketch7 = body.newObject("Sketcher::SketchObject", "Sketch006")
sketch7.AttachmentSupport = (doc.getObject("XZ_Plane"), [""])
sketch7.MapMode = "FlatFace"
add_polygon(sketch7, [(-92.9, -57.8), (-92.9, -56.8), (-76.2, -56.8), (-76.2, -57.8)])  # lines 0-3
add_polygon(sketch7, [(-92.9, -43.8), (-92.9, -42.8), (-76.2, -42.8), (-76.2, -43.8)])  # lines 4-7
sketch7.addConstraint(Sketcher.Constraint("Vertical", 0))
sketch7.addConstraint(Sketcher.Constraint("Horizontal", 1))
sketch7.addConstraint(Sketcher.Constraint("Vertical", 2))
sketch7.addConstraint(Sketcher.Constraint("Horizontal", 3))
sketch7.addConstraint(Sketcher.Constraint("Vertical", 4))
sketch7.addConstraint(Sketcher.Constraint("Horizontal", 5))
sketch7.addConstraint(Sketcher.Constraint("Vertical", 6))
sketch7.addConstraint(Sketcher.Constraint("Horizontal", 7))
sketch7.addConstraint(Sketcher.Constraint("Vertical", 3, 2, 4, 2))
sketch7.addConstraint(Sketcher.Constraint("Vertical", 2, 2, 5, 2))
sketch7.addConstraint(Sketcher.Constraint("Equal", 2, 4))
sketch7.addConstraint(Sketcher.Constraint("DistanceX", 1, 2, -1, 1, Q("3 in")))
sketch7.addConstraint(Sketcher.Constraint("DistanceX", 1, 1, 1, 2, Q("0.65625 in")))
sketch7.addConstraint(Sketcher.Constraint("DistanceY", 0, 1, 0, 2, 1.0))
sketch7.addConstraint(Sketcher.Constraint("DistanceY", 0, 2, -1, 1, 56.81129))
sketch7.addConstraint(Sketcher.Constraint("DistanceY", 4, 2, -1, 1, 42.808053))
pocket4 = body.newObject("PartDesign::Pocket", "Pocket003")
pocket4.Profile = sketch7
pocket4.Length = 4

doc.recompute()
